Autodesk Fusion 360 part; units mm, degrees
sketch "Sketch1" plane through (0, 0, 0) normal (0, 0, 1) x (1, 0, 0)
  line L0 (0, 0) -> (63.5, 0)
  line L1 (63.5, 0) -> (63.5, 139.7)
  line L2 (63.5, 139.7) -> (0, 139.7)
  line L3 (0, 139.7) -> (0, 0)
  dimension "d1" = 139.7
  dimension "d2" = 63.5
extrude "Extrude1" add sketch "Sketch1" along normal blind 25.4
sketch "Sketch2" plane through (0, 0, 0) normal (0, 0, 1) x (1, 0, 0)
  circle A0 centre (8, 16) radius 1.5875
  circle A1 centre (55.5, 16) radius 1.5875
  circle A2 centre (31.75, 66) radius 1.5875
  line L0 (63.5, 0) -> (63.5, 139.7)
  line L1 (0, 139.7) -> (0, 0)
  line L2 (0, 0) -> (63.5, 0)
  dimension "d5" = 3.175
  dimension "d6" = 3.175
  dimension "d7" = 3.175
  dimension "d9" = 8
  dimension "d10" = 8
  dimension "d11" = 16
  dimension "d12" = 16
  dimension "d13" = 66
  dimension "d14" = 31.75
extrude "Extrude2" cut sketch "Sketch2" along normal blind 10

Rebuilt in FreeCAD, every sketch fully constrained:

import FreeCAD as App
import Part
import Sketcher
Q = App.Units.Quantity

doc = App.newDocument("Part")
body = doc.addObject("PartDesign::Body", "Body")

# Sketch on XY plane
sketch1 = body.newObject("Sketcher::SketchObject", "Sketch")
sketch1.AttachmentSupport = (doc.getObject("XY_Plane"), [""])
sketch1.MapMode = "FlatFace"
sketch1.addGeometry(Part.LineSegment(App.Vector(0, 140, 0), App.Vector(0, 0, 0)), False)
sketch1.addGeometry(Part.LineSegment(App.Vector(0, 0, 0), App.Vector(64, 0, 0)), False)
sketch1.addGeometry(Part.LineSegment(App.Vector(64, 0, 0), App.Vector(64, 140, 0)), False)
sketch1.addGeometry(Part.LineSegment(App.Vector(64, 140, 0), App.Vector(0, 140, 0)), False)
sketch1.addConstraint(Sketcher.Constraint("Coincident", 0, 2, 1, 1))
sketch1.addConstraint(Sketcher.Constraint("Coincident", 1, 2, 2, 1))
sketch1.addConstraint(Sketcher.Constraint("Coincident", 2, 2, 3, 1))
sketch1.addConstraint(Sketcher.Constraint("Coincident", 3, 2, 0, 1))
sketch1.addConstraint(Sketcher.Constraint("Vertical", 0))
sketch1.addConstraint(Sketcher.Constraint("Horizontal", 1))
sketch1.addConstraint(Sketcher.Constraint("Vertical", 2))
sketch1.addConstraint(Sketcher.Constraint("Horizontal", 3))
sketch1.addConstraint(Sketcher.Constraint("Coincident", 0, 2, -1, 1))
sketch1.addConstraint(Sketcher.Constraint("DistanceX", 1, 1, 1, 2, Q("2.5 in")))
sketch1.addConstraint(Sketcher.Constraint("DistanceY", 0, 2, 0, 1, Q("5.5 in")))
pad1 = body.newObject("PartDesign::Pad", "Pad")
pad1.Profile = sketch1
pad1.Length = Q("1 in")

# Sketch on XY plane
sketch2 = body.newObject("Sketcher::SketchObject", "Sketch001")
sketch2.AttachmentSupport = (doc.getObject("XY_Plane"), [""])
sketch2.MapMode = "FlatFace"
sketch2.addGeometry(Part.Circle(App.Vector(8, 16, 0), App.Vector(0, 0, 1), 1.6), False)
sketch2.addGeometry(Part.Circle(App.Vector(55.5, 16, 0), App.Vector(0, 0, 1), 1.6), False)
sketch2.addGeometry(Part.Circle(App.Vector(31.8, 66, 0), App.Vector(0, 0, 1), 1.6), False)
sketch2.addConstraint(Sketcher.Constraint("Equal", 0, 1))
sketch2.addConstraint(Sketcher.Constraint("Equal", 1, 2))
sketch2.addConstraint(Sketcher.Constraint("Horizontal", 0, 3, 1, 3))
sketch2.addConstraint(Sketcher.Constraint("Diameter", 0, Q("0.125 in")))
sketch2.addConstraint(Sketcher.Constraint("DistanceX", -1, 1, 2, 3, Q("1.25 in")))
sketch2.addConstraint(Sketcher.Constraint("DistanceX", -1, 1, 0, 3, Q("8 mm")))
sketch2.addConstraint(Sketcher.Constraint("DistanceY", -1, 1, 0, 3, Q("16 mm")))
sketch2.addConstraint(Sketcher.Constraint("DistanceY", -1, 1, 2, 3, Q("66 mm")))
sketch2.addConstraint(Sketcher.Constraint("DistanceX", -1, 1, 1, 3, Q("55.5 mm")))
pocket1 = body.newObject("PartDesign::Pocket", "Pocket")
pocket1.Profile = sketch2
pocket1.Length = Q("0.3937008 in")
pocket1.Reversed = True

doc.recompute()
